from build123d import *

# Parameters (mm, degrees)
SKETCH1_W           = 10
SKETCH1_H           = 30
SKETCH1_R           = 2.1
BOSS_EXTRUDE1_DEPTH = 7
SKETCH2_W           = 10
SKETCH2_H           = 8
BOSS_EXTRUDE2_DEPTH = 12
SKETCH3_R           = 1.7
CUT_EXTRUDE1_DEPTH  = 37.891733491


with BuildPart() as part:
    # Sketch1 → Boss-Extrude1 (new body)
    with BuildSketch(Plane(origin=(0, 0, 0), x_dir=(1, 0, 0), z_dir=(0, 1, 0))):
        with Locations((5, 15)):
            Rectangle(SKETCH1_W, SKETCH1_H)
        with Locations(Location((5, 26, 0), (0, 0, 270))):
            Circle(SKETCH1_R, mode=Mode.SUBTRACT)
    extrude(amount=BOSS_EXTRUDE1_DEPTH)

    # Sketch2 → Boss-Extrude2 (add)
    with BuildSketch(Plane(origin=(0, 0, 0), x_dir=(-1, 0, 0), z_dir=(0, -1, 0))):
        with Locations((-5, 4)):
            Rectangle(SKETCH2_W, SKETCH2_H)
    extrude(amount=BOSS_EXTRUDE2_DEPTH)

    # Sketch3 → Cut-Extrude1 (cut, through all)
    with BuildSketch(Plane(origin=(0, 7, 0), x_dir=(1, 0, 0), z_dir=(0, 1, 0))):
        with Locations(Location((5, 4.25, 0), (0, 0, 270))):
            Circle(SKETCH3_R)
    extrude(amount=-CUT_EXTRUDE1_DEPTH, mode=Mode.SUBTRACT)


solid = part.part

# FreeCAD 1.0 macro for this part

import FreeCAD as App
import Part
import Sketcher
from FreeCAD import Vector

doc = App.newDocument("Part")
params = doc.addObject("Spreadsheet::Sheet", "Params")
for row, (alias, value) in enumerate([
    ("sketch1_diameter", "4.2 mm"),
    ("sketch1_width", "10 mm"),
    ("sketch1_height", "30 mm"),
    ("pad1_length", "7 mm"),
    ("sketch2_width", "10 mm"),
    ("sketch2_height", "8 mm"),
    ("pad2_length", "12 mm"),
    ("sketch3_diameter", "3.4 mm"),
], start=1):
    params.set(f"A{row}", alias)
    params.set(f"B{row}", "=" + value)
    params.setAlias(f"B{row}", alias)

body = doc.addObject("PartDesign::Body", "Body")

# Sketch on XZ plane
sketch1 = doc.addObject("Sketcher::SketchObject", "Sketch")
body.addObject(sketch1)
sketch1.AttachmentSupport = (doc.XZ_Plane, [""])
sketch1.MapMode = "FlatFace"
sketch1.addGeometry(Part.LineSegment(Vector(0, -30, 0), Vector(0, 0, 0)), False)
sketch1.addGeometry(Part.LineSegment(Vector(0, 0, 0), Vector(10, 0, 0)), False)
sketch1.addGeometry(Part.LineSegment(Vector(10, 0, 0), Vector(10, -30, 0)), False)
sketch1.addGeometry(Part.LineSegment(Vector(10, -30, 0), Vector(0, -30, 0)), False)
sketch1.addGeometry(Part.Circle(Vector(5, -26, 0), Vector(0, 0, 1), 2.1), False)
sketch1.addConstraint(Sketcher.Constraint("Coincident", 0, 2, 1, 1))
sketch1.addConstraint(Sketcher.Constraint("Coincident", 1, 2, 2, 1))
sketch1.addConstraint(Sketcher.Constraint("Coincident", 2, 2, 3, 1))
sketch1.addConstraint(Sketcher.Constraint("Coincident", 3, 2, 0, 1))
sketch1.addConstraint(Sketcher.Constraint("Vertical", 0))
sketch1.addConstraint(Sketcher.Constraint("Horizontal", 1))
sketch1.addConstraint(Sketcher.Constraint("Vertical", 2))
sketch1.addConstraint(Sketcher.Constraint("Horizontal", 3))
sketch1.addConstraint(Sketcher.Constraint("Coincident", 0, 2, -1, 1))
sketch1.addConstraint(Sketcher.Constraint("Diameter", 4, 4.2))
sketch1.addConstraint(Sketcher.Constraint("DistanceX", 1, 1, 1, 2, 10.0))
sketch1.addConstraint(Sketcher.Constraint("DistanceY", 0, 1, 0, 2, 30.0))
sketch1.addConstraint(Sketcher.Constraint("DistanceX", -1, 1, 4, 3, 5.0))
sketch1.addConstraint(Sketcher.Constraint("DistanceY", 4, 3, -1, 1, 26.0))
sketch1.setExpression("Constraints[9]", "Params.sketch1_diameter")
sketch1.setExpression("Constraints[10]", "Params.sketch1_width")
sketch1.setExpression("Constraints[11]", "Params.sketch1_height")
pad1 = doc.addObject("PartDesign::Pad", "Pad")
body.addObject(pad1)
pad1.Profile = sketch1
pad1.setExpression("Length", "Params.pad1_length")
pad1.Reversed = True

# Sketch on XZ plane
sketch2 = doc.addObject("Sketcher::SketchObject", "Sketch001")
body.addObject(sketch2)
sketch2.AttachmentSupport = (doc.XZ_Plane, [""])
sketch2.MapMode = "FlatFace"
sketch2.addGeometry(Part.LineSegment(Vector(10, -8, 0), Vector(10, 0, 0)), False)
sketch2.addGeometry(Part.LineSegment(Vector(10, 0, 0), Vector(0, 0, 0)), False)
sketch2.addGeometry(Part.LineSegment(Vector(0, 0, 0), Vector(0, -8, 0)), False)
sketch2.addGeometry(Part.LineSegment(Vector(0, -8, 0), Vector(10, -8, 0)), False)
sketch2.addConstraint(Sketcher.Constraint("Coincident", 0, 2, 1, 1))
sketch2.addConstraint(Sketcher.Constraint("Coincident", 1, 2, 2, 1))
sketch2.addConstraint(Sketcher.Constraint("Coincident", 2, 2, 3, 1))
sketch2.addConstraint(Sketcher.Constraint("Coincident", 3, 2, 0, 1))
sketch2.addConstraint(Sketcher.Constraint("Vertical", 0))
sketch2.addConstraint(Sketcher.Constraint("Horizontal", 1))
sketch2.addConstraint(Sketcher.Constraint("Vertical", 2))
sketch2.addConstraint(Sketcher.Constraint("Horizontal", 3))
sketch2.addConstraint(Sketcher.Constraint("Coincident", 1, 2, -1, 1))
sketch2.addConstraint(Sketcher.Constraint("DistanceX", 1, 2, 1, 1, 10.0))
sketch2.addConstraint(Sketcher.Constraint("DistanceY", 0, 1, 0, 2, 8.0))
sketch2.setExpression("Constraints[9]", "Params.sketch2_width")
sketch2.setExpression("Constraints[10]", "Params.sketch2_height")
pad2 = doc.addObject("PartDesign::Pad", "Pad001")
body.addObject(pad2)
pad2.Profile = sketch2
pad2.setExpression("Length", "Params.pad2_length")

# Sketch on XZ plane
sketch3 = doc.addObject("Sketcher::SketchObject", "Sketch002")
body.addObject(sketch3)
sketch3.AttachmentSupport = (doc.XZ_Plane, [""])
sketch3.MapMode = "FlatFace"
sketch3.AttachmentOffset = App.Placement(Vector(0, 0, -7), App.Rotation())
sketch3.addGeometry(Part.Circle(Vector(5, -4.2, 0), Vector(0, 0, 1), 1.7), False)
sketch3.addConstraint(Sketcher.Constraint("Diameter", 0, 3.4))
sketch3.addConstraint(Sketcher.Constraint("DistanceX", -1, 1, 0, 3, 5.0))
sketch3.addConstraint(Sketcher.Constraint("DistanceY", 0, 3, -1, 1, 4.25))
sketch3.setExpression("Constraints[0]", "Params.sketch3_diameter")
pocket1 = doc.addObject("PartDesign::Pocket", "Pocket")
body.addObject(pocket1)
pocket1.Profile = sketch3
pocket1.Type = "ThroughAll"
pocket1.Reversed = True

doc.recompute()
